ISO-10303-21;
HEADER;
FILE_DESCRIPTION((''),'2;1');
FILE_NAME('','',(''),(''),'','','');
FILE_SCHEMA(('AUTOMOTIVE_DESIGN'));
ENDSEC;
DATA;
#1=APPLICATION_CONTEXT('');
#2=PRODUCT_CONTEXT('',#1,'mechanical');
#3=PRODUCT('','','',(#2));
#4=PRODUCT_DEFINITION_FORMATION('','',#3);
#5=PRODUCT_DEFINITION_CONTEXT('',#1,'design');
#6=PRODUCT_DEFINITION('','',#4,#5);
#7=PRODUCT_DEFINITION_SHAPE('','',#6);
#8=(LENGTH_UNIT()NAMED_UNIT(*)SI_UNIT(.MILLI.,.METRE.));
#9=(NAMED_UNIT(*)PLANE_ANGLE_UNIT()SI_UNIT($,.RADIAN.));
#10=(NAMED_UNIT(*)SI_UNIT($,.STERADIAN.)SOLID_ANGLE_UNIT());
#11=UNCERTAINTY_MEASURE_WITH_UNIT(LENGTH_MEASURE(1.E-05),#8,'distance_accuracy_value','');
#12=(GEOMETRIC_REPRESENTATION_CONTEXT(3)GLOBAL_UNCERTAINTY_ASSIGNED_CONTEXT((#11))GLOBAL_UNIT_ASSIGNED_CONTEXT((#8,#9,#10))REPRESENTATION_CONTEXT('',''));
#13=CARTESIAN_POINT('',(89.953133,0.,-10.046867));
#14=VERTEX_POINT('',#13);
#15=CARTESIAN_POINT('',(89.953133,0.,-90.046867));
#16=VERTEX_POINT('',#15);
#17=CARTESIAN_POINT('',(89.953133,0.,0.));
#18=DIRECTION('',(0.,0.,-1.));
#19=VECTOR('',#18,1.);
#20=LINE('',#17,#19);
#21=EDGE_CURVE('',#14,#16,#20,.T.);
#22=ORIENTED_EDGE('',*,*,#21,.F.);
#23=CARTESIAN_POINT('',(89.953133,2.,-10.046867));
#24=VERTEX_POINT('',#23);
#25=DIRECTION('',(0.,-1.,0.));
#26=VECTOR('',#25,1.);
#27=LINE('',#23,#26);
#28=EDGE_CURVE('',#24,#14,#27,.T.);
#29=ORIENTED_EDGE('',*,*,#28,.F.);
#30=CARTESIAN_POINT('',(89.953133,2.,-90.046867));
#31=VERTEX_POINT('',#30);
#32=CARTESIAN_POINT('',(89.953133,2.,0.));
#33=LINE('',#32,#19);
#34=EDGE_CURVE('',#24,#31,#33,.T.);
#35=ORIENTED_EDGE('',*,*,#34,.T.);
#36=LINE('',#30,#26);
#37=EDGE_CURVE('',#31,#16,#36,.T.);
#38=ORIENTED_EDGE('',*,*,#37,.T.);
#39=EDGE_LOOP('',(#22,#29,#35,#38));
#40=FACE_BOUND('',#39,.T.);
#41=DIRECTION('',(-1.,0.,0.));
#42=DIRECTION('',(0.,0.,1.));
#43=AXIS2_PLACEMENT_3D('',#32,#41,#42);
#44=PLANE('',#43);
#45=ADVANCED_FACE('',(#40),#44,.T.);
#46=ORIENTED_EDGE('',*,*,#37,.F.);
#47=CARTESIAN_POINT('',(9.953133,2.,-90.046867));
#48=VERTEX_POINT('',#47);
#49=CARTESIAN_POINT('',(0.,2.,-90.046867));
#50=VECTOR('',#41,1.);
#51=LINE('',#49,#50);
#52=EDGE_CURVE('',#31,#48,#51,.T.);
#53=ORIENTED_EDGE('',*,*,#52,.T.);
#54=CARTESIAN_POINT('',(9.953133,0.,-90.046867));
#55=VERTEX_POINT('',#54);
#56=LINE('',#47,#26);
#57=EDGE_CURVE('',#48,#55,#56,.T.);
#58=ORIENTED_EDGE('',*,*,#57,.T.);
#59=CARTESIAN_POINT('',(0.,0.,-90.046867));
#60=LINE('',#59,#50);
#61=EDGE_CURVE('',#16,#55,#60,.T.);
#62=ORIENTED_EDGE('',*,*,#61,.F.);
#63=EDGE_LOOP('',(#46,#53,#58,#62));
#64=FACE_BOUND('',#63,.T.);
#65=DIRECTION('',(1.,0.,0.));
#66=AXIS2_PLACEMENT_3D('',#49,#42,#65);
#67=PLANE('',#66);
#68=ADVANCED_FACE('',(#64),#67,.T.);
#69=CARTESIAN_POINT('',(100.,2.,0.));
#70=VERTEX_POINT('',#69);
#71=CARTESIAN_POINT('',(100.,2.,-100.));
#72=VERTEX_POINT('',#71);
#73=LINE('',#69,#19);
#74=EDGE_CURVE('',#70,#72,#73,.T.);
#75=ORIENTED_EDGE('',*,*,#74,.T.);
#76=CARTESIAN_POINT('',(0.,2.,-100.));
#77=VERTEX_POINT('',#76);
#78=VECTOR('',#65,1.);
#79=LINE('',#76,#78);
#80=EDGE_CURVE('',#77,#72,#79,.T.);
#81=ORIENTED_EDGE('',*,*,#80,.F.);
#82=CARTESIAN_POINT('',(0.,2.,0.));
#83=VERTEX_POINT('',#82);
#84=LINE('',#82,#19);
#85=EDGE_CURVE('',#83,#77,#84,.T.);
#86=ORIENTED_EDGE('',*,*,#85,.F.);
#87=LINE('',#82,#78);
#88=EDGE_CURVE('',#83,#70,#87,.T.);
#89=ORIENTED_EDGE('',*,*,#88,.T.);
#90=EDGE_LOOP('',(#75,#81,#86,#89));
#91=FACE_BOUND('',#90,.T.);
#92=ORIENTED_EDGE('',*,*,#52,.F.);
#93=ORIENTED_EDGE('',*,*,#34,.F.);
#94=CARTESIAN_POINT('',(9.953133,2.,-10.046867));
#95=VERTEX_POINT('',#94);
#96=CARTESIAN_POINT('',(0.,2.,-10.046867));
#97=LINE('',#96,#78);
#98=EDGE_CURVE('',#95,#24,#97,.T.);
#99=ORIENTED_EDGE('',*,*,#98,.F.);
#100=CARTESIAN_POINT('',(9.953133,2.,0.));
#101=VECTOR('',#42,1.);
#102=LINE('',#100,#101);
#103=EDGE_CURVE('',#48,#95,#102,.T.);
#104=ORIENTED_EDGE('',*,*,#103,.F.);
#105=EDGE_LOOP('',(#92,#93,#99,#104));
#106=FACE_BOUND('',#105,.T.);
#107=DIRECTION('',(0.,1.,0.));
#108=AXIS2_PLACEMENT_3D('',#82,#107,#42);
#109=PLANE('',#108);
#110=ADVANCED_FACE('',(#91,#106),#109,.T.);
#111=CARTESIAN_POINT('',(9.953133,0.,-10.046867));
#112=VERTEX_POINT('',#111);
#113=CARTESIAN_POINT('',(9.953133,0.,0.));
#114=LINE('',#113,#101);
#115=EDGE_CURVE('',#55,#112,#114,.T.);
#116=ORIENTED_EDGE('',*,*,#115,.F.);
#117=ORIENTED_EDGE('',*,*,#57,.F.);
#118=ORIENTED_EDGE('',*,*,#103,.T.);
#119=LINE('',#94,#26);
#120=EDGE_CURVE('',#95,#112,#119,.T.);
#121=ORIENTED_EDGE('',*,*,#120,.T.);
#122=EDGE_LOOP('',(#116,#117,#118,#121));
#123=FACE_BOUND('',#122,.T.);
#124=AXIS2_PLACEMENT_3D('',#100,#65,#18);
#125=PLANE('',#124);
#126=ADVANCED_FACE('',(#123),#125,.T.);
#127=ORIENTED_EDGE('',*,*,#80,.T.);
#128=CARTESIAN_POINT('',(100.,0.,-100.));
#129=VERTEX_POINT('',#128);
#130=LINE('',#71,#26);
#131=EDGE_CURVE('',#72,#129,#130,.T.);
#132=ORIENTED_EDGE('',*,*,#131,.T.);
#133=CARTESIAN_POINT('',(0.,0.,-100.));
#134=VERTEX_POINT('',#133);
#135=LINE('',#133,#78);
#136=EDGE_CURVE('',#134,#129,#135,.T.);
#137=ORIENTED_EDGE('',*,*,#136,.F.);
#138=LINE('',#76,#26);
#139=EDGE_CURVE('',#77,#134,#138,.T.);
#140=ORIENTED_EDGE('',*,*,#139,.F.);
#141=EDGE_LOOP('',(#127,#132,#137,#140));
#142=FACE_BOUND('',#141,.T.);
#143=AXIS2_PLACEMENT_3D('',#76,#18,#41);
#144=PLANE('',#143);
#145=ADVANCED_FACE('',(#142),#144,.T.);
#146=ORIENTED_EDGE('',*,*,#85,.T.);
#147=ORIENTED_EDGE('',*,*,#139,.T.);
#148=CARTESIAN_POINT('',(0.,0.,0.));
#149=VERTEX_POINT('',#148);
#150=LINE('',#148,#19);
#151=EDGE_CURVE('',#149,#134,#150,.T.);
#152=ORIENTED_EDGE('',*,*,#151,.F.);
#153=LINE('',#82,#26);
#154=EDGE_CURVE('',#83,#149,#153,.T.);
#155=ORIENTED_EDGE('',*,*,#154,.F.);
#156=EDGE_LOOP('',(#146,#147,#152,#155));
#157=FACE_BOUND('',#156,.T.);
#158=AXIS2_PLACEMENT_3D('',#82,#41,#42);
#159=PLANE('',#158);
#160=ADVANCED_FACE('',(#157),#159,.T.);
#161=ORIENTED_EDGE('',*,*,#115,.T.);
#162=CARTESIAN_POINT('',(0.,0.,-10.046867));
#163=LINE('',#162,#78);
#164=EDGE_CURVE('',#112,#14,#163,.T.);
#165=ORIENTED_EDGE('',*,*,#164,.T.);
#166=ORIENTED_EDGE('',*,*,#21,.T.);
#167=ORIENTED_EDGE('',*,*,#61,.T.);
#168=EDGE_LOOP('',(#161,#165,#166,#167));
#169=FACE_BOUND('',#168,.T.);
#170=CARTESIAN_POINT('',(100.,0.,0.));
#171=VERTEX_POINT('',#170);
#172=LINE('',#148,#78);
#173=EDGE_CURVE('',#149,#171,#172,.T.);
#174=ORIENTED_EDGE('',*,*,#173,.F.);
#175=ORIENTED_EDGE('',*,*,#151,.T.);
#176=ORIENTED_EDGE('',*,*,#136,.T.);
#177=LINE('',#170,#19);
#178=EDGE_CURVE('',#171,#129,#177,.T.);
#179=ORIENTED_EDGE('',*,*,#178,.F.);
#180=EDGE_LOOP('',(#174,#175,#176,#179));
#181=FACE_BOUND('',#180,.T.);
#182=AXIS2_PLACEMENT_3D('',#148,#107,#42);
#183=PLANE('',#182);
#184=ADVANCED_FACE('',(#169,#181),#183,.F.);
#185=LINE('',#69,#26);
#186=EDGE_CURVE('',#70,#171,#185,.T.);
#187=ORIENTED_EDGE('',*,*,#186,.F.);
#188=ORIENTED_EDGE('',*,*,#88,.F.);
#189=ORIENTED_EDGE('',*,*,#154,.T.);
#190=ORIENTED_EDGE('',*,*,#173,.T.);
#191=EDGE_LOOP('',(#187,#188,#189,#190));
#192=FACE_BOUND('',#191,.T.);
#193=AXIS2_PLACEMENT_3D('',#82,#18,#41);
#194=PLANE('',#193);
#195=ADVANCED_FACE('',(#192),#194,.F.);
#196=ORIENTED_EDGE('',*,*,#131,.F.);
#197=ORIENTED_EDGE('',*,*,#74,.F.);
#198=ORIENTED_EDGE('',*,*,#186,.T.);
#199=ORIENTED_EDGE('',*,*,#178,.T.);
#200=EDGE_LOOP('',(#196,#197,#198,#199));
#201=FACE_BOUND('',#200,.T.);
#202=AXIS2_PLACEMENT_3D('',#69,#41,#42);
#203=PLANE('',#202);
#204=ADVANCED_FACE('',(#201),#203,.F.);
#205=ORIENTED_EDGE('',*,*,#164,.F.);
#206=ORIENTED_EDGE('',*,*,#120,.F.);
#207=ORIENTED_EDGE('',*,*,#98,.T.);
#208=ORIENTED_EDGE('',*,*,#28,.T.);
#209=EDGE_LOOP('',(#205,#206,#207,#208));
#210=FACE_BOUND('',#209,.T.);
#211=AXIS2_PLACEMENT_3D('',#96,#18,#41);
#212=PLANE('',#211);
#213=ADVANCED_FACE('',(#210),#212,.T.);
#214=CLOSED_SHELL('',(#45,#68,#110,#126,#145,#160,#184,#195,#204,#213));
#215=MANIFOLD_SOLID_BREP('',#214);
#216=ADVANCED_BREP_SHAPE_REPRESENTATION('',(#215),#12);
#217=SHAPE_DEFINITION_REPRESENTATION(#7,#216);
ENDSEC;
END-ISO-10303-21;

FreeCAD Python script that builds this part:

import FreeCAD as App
import Part
import Sketcher
Q = App.Units.Quantity


def add_polygon(sketch, points):
    """Adds a closed chain of lines whose ends are joined by coincident constraints."""
    first, n = sketch.GeometryCount, len(points)
    for a, b in zip(points, points[1:] + points[:1]):
        sketch.addGeometry(Part.LineSegment(App.Vector(*a, 0), App.Vector(*b, 0)), False)
    for i in range(n):
        sketch.addConstraint(Sketcher.Constraint("Coincident", first + i, 2, first + (i + 1) % n, 1))

doc = App.newDocument("Part")
body = doc.addObject("PartDesign::Body", "Body")

# Sketch on XZ plane
sketch1 = doc.addObject("Sketcher::SketchObject", "Sketch")
body.addObject(sketch1)
sketch1.AttachmentSupport = (doc.XZ_Plane, [""])
sketch1.MapMode = "FlatFace"
add_polygon(sketch1, [(0, -100), (0, 0), (100, 0), (100, -100)])  # lines 0-3
add_polygon(sketch1, [(90, -10), (10, -10), (10, -90), (90, -90)])  # lines 4-7
sketch1.addConstraint(Sketcher.Constraint("Vertical", 0))
sketch1.addConstraint(Sketcher.Constraint("Horizontal", 1))
sketch1.addConstraint(Sketcher.Constraint("Vertical", 2))
sketch1.addConstraint(Sketcher.Constraint("Horizontal", 3))
sketch1.addConstraint(Sketcher.Constraint("Horizontal", 4))
sketch1.addConstraint(Sketcher.Constraint("Vertical", 5))
sketch1.addConstraint(Sketcher.Constraint("Horizontal", 6))
sketch1.addConstraint(Sketcher.Constraint("Vertical", 7))
sketch1.addConstraint(Sketcher.Constraint("Coincident", 0, 2, -1, 1))
sketch1.addConstraint(Sketcher.Constraint("Equal", 3, 0))
sketch1.addConstraint(Sketcher.Constraint("Equal", 6, 5))
sketch1.addConstraint(Sketcher.Constraint("DistanceX", 1, 1, 1, 2, Q("100 mm")))
sketch1.addConstraint(Sketcher.Constraint("DistanceX", 4, 2, 4, 1, Q("80 mm")))
sketch1.addConstraint(Sketcher.Constraint("DistanceX", -1, 1, 4, 2, Q("9.953133 mm")))
sketch1.addConstraint(Sketcher.Constraint("DistanceY", 4, 2, -1, 1, Q("10.046867 mm")))
pad1 = doc.addObject("PartDesign::Pad", "Pad")
body.addObject(pad1)
pad1.Profile = sketch1
pad1.Length = 2
pad1.Reversed = True

doc.recompute()
